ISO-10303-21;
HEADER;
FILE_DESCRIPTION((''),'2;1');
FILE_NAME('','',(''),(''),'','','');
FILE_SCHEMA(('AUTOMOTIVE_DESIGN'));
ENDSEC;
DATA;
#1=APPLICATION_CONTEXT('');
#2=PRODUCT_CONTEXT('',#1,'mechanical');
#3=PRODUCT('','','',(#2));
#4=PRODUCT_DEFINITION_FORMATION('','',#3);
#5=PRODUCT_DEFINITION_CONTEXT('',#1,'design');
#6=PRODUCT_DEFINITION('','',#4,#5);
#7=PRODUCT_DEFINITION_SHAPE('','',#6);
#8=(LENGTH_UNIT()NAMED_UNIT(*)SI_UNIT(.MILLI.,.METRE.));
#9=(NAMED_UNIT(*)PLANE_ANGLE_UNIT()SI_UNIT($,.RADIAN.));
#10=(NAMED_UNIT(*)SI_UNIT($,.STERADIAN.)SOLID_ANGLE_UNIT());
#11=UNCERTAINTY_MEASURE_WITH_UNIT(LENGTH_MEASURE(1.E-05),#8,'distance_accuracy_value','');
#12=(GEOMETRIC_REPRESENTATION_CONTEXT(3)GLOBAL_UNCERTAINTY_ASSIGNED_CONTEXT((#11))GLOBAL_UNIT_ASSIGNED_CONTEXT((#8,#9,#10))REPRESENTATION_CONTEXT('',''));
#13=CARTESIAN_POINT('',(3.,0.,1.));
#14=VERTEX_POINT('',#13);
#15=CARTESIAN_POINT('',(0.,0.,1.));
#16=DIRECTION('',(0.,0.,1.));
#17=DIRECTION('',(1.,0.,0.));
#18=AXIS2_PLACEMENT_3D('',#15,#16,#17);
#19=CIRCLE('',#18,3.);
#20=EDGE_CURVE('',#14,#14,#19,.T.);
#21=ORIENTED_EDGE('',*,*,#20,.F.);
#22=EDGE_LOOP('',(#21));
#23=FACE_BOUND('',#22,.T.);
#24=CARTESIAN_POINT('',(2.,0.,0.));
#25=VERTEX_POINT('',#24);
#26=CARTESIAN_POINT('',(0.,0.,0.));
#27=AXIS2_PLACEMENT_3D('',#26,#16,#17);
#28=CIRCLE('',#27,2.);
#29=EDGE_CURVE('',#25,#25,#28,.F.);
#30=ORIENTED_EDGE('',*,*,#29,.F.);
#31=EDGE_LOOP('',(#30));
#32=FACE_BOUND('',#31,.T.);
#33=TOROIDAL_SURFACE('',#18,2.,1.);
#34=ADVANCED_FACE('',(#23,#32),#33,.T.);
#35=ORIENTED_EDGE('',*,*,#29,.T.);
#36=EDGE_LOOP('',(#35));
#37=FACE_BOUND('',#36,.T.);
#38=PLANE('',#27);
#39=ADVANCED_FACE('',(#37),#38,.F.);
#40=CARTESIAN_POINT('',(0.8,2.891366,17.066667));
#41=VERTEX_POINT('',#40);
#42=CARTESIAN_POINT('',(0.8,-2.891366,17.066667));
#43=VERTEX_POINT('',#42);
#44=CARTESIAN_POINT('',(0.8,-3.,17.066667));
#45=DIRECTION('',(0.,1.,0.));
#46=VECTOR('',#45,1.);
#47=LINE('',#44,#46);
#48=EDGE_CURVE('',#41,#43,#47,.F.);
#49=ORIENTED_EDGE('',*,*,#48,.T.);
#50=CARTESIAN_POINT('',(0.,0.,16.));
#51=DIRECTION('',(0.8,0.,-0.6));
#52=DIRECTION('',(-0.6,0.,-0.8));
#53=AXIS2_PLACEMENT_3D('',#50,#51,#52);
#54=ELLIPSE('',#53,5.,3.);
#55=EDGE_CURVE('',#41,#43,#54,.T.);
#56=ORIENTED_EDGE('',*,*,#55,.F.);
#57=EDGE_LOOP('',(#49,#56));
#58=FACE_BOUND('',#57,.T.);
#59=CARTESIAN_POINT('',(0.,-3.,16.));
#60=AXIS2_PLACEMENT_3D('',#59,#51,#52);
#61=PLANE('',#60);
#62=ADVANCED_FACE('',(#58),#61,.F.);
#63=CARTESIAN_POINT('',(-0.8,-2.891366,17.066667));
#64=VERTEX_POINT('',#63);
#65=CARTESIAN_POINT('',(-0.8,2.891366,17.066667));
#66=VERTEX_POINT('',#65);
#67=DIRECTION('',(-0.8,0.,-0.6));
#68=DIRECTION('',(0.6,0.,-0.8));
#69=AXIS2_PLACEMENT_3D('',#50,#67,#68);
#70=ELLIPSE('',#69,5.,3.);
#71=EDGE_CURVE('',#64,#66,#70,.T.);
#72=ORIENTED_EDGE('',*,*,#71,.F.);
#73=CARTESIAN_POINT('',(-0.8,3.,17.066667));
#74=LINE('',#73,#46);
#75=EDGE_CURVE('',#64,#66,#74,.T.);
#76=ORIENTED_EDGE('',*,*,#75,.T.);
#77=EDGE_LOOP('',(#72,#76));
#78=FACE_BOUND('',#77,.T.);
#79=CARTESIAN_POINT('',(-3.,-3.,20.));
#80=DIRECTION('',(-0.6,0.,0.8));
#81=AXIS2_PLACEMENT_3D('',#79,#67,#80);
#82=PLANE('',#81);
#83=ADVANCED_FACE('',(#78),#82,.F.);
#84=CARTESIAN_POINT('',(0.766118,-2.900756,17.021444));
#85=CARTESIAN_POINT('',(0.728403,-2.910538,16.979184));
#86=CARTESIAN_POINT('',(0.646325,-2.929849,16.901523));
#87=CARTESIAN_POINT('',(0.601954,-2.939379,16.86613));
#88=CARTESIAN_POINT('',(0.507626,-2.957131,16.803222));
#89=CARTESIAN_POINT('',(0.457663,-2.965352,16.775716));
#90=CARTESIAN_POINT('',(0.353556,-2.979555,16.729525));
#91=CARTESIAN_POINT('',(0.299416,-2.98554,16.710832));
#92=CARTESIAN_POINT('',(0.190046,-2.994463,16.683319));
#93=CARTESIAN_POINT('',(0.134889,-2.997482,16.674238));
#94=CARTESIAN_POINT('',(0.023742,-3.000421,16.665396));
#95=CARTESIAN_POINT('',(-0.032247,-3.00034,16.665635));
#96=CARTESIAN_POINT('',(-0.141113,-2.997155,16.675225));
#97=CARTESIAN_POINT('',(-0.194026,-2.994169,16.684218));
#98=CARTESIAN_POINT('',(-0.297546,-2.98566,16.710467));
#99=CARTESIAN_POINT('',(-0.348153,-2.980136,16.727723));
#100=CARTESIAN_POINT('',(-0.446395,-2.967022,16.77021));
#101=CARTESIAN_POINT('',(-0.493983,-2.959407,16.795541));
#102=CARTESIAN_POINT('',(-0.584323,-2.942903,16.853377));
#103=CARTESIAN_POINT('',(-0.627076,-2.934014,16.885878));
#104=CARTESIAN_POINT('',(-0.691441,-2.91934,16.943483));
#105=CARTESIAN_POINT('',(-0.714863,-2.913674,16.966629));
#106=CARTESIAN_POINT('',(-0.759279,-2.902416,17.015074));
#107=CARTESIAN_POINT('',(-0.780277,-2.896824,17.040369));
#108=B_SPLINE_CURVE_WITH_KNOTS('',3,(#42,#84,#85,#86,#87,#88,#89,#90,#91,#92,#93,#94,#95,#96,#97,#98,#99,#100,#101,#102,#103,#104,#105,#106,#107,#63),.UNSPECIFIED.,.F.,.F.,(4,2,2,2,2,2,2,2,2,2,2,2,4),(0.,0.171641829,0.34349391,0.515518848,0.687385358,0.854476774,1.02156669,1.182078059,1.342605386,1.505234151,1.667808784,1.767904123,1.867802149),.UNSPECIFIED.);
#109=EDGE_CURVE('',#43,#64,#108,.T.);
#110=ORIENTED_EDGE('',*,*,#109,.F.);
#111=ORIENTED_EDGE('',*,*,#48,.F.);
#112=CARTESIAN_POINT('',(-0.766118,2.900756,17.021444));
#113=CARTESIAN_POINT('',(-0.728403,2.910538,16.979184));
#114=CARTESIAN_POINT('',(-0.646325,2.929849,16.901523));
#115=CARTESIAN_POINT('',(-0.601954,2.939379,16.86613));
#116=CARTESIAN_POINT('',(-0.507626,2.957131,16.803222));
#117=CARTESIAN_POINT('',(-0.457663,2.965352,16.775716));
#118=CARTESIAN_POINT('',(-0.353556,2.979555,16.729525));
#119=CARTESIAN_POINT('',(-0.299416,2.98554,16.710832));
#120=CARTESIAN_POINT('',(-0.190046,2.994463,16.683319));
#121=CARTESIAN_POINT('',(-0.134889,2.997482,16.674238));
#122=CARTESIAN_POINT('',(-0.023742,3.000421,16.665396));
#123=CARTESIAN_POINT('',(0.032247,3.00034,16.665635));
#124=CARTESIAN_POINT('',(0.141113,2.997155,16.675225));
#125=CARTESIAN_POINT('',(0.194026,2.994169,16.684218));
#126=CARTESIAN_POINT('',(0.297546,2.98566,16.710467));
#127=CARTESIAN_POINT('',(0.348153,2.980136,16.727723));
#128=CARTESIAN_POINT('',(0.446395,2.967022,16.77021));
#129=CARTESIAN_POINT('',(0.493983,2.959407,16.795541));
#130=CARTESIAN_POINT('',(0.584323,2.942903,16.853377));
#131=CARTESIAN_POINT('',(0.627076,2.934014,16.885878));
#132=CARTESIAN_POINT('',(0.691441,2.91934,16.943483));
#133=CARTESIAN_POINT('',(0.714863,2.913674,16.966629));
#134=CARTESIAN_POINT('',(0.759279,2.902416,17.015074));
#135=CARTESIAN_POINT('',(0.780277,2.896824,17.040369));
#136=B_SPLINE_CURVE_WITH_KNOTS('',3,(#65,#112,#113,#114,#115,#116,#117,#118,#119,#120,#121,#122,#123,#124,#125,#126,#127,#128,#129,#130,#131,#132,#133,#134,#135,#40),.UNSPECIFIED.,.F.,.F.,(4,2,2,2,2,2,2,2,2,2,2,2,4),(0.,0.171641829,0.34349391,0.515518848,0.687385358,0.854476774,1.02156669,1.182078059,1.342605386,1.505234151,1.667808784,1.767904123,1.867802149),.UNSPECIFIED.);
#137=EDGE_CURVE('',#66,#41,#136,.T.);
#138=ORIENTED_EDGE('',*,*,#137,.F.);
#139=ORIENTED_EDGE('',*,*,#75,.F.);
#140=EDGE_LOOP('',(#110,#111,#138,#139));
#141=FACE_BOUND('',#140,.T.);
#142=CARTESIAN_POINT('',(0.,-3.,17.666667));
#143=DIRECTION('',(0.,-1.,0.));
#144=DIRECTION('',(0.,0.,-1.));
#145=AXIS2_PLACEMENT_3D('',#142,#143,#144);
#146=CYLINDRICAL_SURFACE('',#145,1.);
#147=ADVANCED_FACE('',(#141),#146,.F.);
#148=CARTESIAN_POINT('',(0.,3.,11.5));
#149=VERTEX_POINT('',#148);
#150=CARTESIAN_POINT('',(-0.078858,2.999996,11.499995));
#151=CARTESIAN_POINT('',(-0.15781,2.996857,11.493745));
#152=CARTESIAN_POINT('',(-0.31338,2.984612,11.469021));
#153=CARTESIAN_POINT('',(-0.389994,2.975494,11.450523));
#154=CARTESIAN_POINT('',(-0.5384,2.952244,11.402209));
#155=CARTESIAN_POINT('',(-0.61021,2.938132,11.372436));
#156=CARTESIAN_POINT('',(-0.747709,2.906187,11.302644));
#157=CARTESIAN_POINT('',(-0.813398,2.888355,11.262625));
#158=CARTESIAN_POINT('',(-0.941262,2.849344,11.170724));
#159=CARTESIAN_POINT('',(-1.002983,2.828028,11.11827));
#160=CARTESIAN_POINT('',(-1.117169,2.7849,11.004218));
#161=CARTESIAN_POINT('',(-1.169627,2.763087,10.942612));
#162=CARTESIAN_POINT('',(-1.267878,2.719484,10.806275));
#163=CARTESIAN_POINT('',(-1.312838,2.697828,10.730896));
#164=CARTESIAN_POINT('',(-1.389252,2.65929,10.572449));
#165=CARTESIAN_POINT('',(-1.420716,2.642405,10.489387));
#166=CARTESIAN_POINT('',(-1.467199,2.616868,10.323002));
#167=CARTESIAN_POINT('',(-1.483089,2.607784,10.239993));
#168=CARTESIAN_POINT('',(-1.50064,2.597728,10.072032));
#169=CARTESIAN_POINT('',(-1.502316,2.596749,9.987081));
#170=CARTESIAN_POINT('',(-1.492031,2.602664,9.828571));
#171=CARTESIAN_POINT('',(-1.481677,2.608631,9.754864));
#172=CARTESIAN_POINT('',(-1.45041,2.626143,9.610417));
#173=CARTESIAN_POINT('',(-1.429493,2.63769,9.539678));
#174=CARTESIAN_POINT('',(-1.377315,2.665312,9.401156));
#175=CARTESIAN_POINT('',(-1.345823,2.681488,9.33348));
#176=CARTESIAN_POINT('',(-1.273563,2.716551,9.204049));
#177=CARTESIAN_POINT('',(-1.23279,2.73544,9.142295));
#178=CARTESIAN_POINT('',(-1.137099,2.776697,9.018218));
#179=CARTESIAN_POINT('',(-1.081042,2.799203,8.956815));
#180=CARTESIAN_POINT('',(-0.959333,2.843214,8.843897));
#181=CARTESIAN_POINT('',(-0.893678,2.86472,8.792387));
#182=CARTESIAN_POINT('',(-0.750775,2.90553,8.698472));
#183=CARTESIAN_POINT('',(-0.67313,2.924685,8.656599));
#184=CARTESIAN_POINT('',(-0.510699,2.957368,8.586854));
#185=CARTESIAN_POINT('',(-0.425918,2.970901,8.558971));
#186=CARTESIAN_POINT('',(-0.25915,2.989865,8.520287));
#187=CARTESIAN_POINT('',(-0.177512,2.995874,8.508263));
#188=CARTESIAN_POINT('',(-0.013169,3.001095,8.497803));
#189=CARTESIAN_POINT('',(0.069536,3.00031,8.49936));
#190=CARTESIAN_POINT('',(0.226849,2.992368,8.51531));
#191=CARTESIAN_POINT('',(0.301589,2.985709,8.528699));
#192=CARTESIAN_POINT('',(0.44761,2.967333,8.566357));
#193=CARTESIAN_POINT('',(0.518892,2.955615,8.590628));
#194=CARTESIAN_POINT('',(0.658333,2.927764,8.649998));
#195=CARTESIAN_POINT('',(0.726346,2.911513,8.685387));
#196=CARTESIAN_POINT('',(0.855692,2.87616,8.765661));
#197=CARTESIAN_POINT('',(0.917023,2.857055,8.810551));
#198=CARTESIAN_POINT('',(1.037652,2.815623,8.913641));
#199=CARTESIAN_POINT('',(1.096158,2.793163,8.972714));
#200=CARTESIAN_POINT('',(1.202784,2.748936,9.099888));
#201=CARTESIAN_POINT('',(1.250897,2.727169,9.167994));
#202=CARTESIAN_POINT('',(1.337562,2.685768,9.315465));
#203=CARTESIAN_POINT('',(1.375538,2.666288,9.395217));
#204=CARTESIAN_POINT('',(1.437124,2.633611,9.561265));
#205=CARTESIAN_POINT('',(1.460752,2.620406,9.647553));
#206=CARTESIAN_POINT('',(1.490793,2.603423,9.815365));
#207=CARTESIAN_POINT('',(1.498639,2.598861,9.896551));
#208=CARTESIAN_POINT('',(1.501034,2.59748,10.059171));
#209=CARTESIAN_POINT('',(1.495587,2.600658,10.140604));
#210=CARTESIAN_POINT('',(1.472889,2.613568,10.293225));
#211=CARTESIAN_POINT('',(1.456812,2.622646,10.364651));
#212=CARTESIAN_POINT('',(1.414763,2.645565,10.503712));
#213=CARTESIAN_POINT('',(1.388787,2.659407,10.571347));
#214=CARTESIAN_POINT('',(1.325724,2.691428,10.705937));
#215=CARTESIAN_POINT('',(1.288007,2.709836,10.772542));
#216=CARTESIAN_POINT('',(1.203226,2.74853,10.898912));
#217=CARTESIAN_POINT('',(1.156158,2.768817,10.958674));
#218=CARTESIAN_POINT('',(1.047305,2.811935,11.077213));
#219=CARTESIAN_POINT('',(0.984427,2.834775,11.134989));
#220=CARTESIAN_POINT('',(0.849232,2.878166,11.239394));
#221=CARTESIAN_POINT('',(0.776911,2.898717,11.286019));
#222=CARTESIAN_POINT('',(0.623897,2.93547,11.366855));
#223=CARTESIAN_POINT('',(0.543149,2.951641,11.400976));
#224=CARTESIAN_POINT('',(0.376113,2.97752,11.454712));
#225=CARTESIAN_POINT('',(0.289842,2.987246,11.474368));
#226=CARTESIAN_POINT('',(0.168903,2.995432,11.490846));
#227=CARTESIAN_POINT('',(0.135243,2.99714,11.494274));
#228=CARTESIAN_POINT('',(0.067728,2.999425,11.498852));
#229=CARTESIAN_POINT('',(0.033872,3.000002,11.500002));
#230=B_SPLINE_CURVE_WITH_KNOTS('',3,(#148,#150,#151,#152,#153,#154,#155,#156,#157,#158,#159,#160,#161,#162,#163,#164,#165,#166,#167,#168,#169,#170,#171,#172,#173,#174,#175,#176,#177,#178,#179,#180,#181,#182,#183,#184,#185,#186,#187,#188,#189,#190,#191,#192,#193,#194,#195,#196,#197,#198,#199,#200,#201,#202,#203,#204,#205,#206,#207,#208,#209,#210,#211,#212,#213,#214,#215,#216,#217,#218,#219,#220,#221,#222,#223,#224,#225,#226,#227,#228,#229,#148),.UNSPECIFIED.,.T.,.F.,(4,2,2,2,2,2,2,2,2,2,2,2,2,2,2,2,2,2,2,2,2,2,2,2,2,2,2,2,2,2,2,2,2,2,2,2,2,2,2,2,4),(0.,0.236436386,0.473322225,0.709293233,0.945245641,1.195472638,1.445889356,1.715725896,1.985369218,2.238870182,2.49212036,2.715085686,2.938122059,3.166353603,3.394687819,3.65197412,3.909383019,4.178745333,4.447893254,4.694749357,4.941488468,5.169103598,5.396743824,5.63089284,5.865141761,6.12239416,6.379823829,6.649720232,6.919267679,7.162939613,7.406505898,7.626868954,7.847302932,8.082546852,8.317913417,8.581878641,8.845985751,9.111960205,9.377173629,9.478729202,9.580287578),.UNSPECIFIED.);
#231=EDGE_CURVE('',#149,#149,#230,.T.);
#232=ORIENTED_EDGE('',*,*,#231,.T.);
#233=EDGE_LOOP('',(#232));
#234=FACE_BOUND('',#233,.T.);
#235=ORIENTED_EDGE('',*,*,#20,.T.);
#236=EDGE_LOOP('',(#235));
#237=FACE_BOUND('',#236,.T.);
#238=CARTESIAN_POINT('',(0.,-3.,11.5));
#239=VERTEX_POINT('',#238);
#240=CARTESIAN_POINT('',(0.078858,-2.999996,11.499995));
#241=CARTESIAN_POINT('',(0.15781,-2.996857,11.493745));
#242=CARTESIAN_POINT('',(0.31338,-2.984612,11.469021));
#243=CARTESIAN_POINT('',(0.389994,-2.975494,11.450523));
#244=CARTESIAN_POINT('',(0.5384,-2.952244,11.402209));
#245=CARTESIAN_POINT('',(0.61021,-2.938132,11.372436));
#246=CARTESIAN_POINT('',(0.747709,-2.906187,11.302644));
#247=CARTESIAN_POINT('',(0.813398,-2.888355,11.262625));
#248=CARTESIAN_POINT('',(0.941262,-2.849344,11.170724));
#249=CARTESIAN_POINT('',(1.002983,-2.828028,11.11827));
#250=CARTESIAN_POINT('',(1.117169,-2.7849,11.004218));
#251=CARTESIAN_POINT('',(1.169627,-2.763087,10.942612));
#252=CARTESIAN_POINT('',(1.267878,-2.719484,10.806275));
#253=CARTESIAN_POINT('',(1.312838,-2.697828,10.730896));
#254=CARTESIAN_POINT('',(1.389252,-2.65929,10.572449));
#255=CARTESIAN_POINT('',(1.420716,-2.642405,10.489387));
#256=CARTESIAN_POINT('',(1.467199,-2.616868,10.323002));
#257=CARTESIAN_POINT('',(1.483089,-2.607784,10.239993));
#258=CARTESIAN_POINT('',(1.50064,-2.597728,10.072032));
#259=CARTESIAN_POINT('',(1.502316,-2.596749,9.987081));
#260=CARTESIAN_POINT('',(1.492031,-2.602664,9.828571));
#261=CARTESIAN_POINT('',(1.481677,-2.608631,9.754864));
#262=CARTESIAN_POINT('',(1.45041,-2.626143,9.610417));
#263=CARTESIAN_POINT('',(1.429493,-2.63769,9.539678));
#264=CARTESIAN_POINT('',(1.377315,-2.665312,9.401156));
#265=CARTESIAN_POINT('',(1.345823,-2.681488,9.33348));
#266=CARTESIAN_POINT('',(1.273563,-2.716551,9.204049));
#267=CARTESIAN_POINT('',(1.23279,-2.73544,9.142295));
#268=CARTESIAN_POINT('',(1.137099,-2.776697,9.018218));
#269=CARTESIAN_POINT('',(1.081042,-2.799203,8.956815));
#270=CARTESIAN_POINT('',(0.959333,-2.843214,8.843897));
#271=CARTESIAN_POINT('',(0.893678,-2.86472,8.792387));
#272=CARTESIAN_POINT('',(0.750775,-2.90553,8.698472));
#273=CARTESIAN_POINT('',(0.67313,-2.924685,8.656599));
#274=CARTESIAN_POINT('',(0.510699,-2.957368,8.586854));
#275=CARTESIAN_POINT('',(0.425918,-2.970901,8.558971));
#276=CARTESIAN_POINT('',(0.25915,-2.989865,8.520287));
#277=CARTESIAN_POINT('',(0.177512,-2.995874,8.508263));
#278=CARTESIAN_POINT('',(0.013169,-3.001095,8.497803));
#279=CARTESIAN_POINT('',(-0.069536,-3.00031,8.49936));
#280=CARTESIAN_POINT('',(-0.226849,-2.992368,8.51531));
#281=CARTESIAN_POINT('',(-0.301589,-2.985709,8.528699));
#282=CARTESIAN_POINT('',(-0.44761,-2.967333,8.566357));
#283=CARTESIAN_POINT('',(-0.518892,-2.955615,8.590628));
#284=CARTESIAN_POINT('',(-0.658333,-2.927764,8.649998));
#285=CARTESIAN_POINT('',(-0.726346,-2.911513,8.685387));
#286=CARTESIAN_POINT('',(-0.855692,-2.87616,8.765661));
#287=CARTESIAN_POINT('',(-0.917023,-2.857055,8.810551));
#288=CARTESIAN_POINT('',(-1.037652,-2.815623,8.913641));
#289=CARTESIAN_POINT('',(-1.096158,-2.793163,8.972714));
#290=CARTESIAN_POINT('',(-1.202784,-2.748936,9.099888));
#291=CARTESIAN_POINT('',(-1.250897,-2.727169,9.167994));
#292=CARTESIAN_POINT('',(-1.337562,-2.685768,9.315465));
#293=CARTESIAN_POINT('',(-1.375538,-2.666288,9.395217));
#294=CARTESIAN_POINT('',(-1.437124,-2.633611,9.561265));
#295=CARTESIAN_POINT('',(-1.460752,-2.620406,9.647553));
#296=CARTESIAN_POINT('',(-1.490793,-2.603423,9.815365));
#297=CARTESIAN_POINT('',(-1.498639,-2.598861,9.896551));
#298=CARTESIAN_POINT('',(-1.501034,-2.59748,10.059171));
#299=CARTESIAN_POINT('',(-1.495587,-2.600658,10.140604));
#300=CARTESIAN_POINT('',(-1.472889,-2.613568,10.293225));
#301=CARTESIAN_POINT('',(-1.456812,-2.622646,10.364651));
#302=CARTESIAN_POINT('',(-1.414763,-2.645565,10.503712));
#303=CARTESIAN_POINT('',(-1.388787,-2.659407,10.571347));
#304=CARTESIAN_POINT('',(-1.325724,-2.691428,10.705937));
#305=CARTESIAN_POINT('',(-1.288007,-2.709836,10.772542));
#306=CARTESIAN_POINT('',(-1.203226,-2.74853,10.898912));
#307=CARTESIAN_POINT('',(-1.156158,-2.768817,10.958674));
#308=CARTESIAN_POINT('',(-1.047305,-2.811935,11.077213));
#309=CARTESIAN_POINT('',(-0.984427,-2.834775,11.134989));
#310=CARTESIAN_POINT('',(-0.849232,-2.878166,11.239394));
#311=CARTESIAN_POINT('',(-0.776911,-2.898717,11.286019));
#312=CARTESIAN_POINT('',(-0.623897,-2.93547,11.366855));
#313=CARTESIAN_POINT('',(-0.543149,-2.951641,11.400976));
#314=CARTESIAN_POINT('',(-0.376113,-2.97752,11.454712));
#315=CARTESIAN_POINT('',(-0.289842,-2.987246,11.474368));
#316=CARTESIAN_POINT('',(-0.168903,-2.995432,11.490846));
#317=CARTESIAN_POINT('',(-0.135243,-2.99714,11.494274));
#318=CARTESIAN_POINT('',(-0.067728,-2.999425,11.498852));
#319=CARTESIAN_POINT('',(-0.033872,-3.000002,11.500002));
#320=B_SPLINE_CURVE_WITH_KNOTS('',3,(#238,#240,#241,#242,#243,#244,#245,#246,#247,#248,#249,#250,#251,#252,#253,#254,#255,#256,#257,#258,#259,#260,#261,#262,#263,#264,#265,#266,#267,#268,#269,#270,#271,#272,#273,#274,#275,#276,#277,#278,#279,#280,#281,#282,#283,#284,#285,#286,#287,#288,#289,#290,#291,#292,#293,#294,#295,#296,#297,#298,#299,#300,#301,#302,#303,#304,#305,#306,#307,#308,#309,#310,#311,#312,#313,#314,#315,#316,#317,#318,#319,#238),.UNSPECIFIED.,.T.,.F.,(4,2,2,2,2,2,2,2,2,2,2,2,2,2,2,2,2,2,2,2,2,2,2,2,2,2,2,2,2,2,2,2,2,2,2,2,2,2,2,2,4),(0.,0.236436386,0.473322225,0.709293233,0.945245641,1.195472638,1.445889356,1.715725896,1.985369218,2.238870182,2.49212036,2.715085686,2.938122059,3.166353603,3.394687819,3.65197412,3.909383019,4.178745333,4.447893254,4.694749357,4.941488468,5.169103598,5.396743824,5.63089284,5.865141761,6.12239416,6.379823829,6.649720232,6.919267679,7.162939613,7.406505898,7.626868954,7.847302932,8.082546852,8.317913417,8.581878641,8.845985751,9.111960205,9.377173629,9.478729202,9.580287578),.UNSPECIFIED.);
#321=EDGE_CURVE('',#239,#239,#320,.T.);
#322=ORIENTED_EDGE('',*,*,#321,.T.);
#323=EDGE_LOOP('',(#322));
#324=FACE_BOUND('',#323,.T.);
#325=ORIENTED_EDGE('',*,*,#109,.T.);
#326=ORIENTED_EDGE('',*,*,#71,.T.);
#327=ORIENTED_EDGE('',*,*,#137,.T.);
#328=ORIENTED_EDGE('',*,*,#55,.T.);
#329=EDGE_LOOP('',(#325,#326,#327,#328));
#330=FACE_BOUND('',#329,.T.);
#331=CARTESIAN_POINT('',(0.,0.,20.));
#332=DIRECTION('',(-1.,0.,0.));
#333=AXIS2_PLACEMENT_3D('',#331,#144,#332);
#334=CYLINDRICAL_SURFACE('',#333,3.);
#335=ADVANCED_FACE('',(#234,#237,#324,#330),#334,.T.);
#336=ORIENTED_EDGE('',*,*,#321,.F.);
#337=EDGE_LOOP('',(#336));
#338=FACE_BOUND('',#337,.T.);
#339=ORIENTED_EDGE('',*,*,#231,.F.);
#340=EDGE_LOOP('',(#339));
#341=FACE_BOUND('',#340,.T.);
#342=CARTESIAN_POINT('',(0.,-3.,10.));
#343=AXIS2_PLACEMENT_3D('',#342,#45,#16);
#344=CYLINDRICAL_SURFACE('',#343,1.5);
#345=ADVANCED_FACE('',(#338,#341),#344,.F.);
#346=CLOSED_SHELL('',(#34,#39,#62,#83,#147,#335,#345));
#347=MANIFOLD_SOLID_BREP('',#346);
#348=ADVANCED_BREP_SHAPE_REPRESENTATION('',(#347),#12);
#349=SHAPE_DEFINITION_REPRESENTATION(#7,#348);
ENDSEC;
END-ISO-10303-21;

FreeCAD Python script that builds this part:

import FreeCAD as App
import Part
import Sketcher

V = App.Vector
Q = App.Units.Quantity


def edges_at(feature, points):
    """Names of the edges that pass closest to the given points."""
    edges = feature.Shape.Edges
    near = lambda p: min(range(len(edges)), key=lambda i: edges[i].distToShape(Part.Vertex(*p))[0])
    return sorted({f"Edge{near(p) + 1}" for p in points})

doc = App.newDocument("Part")
body = doc.addObject("PartDesign::Body", "Body")

# Sketch on XY plane
sketch1 = body.newObject("Sketcher::SketchObject", "Sketch")
sketch1.AttachmentSupport = (doc.getObject("XY_Plane"), [""])
sketch1.MapMode = "FlatFace"
sketch1.addGeometry(Part.Circle(V(0, 0, 0), V(0, 0, 1), 3), False)
sketch1.addConstraint([
    Sketcher.Constraint("Coincident", 0, 3, -1, 1),
    Sketcher.Constraint("Diameter", 0, Q("6 mm")),
])
pad1 = body.newObject("PartDesign::Pad", "Pad")
pad1.Profile = sketch1
pad1.Length = 20

# Sketch on XZ plane
sketch2 = body.newObject("Sketcher::SketchObject", "Sketch001")
sketch2.AttachmentSupport = (doc.getObject("XZ_Plane"), [""])
sketch2.MapMode = "FlatFace"
sketch2.addGeometry([
    Part.Circle(V(0, 10, 0), V(0, 0, 1), 1.5),
    Part.LineSegment(V(0, 16, 0), V(-3, 20, 0)),
    Part.LineSegment(V(-3, 20, 0), V(3, 20, 0)),
    Part.LineSegment(V(3, 20, 0), V(0, 16, 0)),
], False)
sketch2.addConstraint([
    Sketcher.Constraint("Coincident", 1, 2, 2, 1),
    Sketcher.Constraint("Coincident", 2, 2, 3, 1),
    Sketcher.Constraint("Coincident", 3, 2, 1, 1),
    Sketcher.Constraint("Horizontal", 2),
    Sketcher.Constraint("PointOnObject", 0, 3, -2),
    Sketcher.Constraint("PointOnObject", 3, 2, -2),
    Sketcher.Constraint("Equal", 1, 3),
    Sketcher.Constraint("Diameter", 0, Q("3 mm")),
    Sketcher.Constraint("DistanceX", 2, 1, 2, 2, Q("6 mm")),
    Sketcher.Constraint("Distance", 1, Q("5 mm")),
    Sketcher.Constraint("DistanceY", -1, 1, 0, 3, Q("10 mm")),
    Sketcher.Constraint("DistanceY", -1, 1, 1, 2, Q("20 mm")),
])
pocket1 = body.newObject("PartDesign::Pocket", "Pocket")
pocket1.Profile = sketch2
pocket1.Type = "ThroughAll"
pocket1.Midplane = True
doc.recompute()

fillet = body.newObject("PartDesign::Fillet", "Fillet")
fillet.Base = (pocket1, edges_at(pocket1, [(-3, 0, 0), (0, 0, 16)]))
fillet.Radius = 1

doc.recompute()
